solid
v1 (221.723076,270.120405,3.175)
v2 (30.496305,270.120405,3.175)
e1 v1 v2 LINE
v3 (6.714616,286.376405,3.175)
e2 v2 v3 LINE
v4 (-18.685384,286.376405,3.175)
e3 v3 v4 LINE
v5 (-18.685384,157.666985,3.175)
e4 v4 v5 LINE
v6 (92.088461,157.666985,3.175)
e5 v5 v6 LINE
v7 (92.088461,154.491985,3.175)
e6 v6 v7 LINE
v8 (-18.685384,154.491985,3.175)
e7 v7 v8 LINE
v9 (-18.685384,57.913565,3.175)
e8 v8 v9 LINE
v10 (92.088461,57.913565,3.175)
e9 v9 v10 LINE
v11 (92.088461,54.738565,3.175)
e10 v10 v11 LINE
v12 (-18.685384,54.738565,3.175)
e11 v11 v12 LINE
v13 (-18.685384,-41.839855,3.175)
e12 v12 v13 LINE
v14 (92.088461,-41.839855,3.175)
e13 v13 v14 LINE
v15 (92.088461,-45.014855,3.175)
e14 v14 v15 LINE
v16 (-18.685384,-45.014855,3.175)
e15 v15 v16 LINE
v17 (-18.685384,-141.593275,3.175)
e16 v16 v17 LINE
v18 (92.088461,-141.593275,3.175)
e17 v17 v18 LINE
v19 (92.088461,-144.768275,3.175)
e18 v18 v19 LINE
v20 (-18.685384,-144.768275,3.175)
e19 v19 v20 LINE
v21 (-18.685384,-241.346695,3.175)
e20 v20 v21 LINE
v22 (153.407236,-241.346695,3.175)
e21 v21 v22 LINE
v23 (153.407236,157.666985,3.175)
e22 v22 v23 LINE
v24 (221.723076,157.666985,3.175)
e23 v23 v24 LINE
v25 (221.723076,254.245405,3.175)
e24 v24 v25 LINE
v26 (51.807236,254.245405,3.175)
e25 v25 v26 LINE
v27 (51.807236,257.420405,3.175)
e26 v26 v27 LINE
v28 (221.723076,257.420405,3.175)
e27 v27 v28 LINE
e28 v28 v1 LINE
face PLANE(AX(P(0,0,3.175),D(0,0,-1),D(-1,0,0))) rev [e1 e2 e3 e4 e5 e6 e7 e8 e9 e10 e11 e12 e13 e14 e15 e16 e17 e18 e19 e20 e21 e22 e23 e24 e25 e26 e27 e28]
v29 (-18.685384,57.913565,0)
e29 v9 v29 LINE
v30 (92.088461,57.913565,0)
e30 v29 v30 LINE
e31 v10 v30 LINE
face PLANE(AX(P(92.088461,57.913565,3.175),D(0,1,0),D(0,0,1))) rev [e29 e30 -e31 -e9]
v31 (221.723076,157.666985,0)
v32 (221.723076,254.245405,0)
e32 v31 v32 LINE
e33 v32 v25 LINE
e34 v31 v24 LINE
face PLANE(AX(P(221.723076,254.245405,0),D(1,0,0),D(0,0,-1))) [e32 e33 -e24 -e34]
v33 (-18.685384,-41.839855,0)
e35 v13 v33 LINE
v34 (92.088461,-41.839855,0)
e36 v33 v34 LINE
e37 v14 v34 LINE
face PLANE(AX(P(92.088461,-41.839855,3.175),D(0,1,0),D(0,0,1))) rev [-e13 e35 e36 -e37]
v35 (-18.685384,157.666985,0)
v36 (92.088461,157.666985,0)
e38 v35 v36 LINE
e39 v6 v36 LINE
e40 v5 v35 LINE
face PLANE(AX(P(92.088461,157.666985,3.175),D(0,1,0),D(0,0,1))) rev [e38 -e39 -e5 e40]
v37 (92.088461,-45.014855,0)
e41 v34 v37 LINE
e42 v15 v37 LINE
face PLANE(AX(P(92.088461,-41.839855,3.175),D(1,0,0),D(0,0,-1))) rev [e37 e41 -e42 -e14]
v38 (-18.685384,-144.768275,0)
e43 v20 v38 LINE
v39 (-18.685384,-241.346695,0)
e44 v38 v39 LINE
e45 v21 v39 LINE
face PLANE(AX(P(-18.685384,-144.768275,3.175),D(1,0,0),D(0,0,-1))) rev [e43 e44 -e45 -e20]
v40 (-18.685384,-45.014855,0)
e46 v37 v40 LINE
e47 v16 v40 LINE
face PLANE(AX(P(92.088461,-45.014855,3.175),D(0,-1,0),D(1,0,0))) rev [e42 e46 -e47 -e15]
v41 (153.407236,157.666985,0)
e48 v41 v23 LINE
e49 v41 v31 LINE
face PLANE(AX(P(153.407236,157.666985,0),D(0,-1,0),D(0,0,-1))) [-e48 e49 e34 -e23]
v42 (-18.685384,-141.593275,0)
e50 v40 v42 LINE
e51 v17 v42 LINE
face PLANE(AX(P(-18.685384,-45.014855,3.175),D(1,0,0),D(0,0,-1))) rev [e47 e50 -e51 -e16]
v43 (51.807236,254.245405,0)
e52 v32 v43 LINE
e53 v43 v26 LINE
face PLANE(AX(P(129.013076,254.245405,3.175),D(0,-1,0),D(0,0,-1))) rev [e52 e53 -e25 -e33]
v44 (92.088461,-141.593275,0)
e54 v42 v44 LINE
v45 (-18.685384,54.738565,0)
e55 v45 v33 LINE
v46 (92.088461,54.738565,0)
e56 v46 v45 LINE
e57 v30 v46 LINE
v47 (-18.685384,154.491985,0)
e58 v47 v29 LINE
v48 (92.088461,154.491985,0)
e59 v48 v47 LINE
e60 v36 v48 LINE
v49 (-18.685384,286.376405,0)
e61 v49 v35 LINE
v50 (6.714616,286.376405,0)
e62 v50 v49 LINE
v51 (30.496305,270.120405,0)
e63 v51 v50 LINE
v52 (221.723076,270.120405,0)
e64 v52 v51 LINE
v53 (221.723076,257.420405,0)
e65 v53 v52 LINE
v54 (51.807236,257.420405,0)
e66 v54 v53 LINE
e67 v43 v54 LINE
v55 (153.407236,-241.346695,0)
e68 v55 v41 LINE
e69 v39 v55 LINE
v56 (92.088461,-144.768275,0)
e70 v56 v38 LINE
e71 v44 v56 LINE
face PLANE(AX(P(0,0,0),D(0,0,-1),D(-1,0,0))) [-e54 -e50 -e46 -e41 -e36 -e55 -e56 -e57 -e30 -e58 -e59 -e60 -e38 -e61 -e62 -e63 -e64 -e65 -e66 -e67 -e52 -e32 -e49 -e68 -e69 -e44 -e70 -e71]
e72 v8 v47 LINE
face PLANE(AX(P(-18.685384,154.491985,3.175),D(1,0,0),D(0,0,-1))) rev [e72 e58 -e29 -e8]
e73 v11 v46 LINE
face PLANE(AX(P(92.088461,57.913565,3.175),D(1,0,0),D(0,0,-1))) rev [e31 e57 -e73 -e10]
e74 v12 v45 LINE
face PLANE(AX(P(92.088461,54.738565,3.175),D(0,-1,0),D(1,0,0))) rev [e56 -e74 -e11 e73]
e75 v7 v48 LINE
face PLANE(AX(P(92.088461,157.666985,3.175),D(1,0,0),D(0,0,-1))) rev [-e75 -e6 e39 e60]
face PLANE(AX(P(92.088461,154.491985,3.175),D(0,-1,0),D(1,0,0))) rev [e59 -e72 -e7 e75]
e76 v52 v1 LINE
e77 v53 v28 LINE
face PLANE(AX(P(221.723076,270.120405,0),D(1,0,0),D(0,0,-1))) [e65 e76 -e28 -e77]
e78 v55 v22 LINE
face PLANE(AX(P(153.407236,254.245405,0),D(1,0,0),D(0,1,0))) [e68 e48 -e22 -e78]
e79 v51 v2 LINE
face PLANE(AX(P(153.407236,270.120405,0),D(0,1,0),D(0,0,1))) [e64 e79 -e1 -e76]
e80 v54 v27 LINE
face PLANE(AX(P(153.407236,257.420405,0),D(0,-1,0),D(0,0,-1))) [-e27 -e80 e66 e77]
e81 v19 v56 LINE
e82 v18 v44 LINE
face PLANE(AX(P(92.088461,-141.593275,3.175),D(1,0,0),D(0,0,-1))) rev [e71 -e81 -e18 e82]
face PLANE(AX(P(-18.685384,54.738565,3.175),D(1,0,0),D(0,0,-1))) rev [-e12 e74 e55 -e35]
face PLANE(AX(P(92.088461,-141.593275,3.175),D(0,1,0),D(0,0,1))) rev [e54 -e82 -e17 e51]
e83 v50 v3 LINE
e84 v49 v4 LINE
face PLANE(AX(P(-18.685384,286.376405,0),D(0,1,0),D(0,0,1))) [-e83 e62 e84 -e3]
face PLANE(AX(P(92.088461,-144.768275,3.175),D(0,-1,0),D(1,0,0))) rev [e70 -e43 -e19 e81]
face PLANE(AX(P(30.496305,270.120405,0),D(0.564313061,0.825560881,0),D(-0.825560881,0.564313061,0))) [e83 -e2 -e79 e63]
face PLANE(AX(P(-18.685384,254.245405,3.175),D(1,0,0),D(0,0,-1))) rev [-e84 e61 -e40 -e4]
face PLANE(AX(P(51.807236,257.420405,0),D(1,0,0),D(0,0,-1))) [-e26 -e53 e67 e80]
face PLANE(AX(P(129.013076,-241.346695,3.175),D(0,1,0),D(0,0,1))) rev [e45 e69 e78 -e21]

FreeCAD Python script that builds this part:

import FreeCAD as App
import Part
import Sketcher

V = App.Vector
Q = App.Units.Quantity

doc = App.newDocument("Part")
body = doc.addObject("PartDesign::Body", "Body")

sketch1 = body.newObject("Sketcher::SketchObject", "Sketch")
sketch1.AttachmentSupport = (doc.getObject("XY_Plane"), [""])
sketch1.MapMode = "FlatFace"
sketch1.addGeometry([
    Part.LineSegment(V(129.013076, 254.245405, 0), V(-18.685384, 254.245405, 0)),
    Part.LineSegment(V(-18.685384, 254.245405, 0), V(-18.685384, 157.666985, 0)),
    Part.LineSegment(V(-18.685384, 157.666985, 0), V(92.088461, 157.666985, 0)),
    Part.LineSegment(V(92.088461, 157.666985, 0), V(92.088461, 154.491985, 0)),
    Part.LineSegment(V(92.088461, 154.491985, 0), V(-18.685384, 154.491985, 0)),
    Part.LineSegment(V(-18.685384, 154.491985, 0), V(-18.685384, 57.913565, 0)),
    Part.LineSegment(V(-18.685384, 57.913565, 0), V(92.088461, 57.913565, 0)),
    Part.LineSegment(V(92.088461, 57.913565, 0), V(92.088461, 54.738565, 0)),
    Part.LineSegment(V(92.088461, 54.738565, 0), V(-18.685384, 54.738565, 0)),
    Part.LineSegment(V(-18.685384, 54.738565, 0), V(-18.685384, -41.839855, 0)),
    Part.LineSegment(V(-18.685384, -41.839855, 0), V(92.088461, -41.839855, 0)),
    Part.LineSegment(V(92.088461, -41.839855, 0), V(92.088461, -45.014855, 0)),
    Part.LineSegment(V(92.088461, -45.014855, 0), V(-18.685384, -45.014855, 0)),
    Part.LineSegment(V(-18.685384, -45.014855, 0), V(-18.685384, -141.593275, 0)),
    Part.LineSegment(V(-18.685384, -141.593275, 0), V(92.088461, -141.593275, 0)),
    Part.LineSegment(V(92.088461, -141.593275, 0), V(92.088461, -144.768275, 0)),
    Part.LineSegment(V(92.088461, -144.768275, 0), V(-18.685384, -144.768275, 0)),
    Part.LineSegment(V(-18.685384, -144.768275, 0), V(-18.685384, -241.346695, 0)),
    Part.LineSegment(V(-18.685384, -241.346695, 0), V(129.013076, -241.346695, 0)),
    Part.LineSegment(V(129.013076, -241.346695, 0), V(129.013076, 254.245405, 0)),
], False)
sketch1.addConstraint([
    Sketcher.Constraint("Coincident", 0, 2, 1, 1),
    Sketcher.Constraint("Coincident", 1, 2, 2, 1),
    Sketcher.Constraint("Coincident", 2, 2, 3, 1),
    Sketcher.Constraint("Coincident", 3, 2, 4, 1),
    Sketcher.Constraint("Coincident", 4, 2, 5, 1),
    Sketcher.Constraint("Coincident", 5, 2, 6, 1),
    Sketcher.Constraint("Coincident", 6, 2, 7, 1),
    Sketcher.Constraint("Coincident", 7, 2, 8, 1),
    Sketcher.Constraint("Coincident", 8, 2, 9, 1),
    Sketcher.Constraint("Coincident", 9, 2, 10, 1),
    Sketcher.Constraint("Coincident", 10, 2, 11, 1),
    Sketcher.Constraint("Coincident", 11, 2, 12, 1),
    Sketcher.Constraint("Coincident", 12, 2, 13, 1),
    Sketcher.Constraint("Coincident", 13, 2, 14, 1),
    Sketcher.Constraint("Coincident", 14, 2, 15, 1),
    Sketcher.Constraint("Coincident", 15, 2, 16, 1),
    Sketcher.Constraint("Coincident", 16, 2, 17, 1),
    Sketcher.Constraint("Coincident", 17, 2, 18, 1),
    Sketcher.Constraint("Coincident", 18, 2, 19, 1),
    Sketcher.Constraint("Coincident", 19, 2, 0, 1),
    Sketcher.Constraint("Horizontal", 0),
    Sketcher.Constraint("Vertical", 1),
    Sketcher.Constraint("Horizontal", 2),
    Sketcher.Constraint("Vertical", 3),
    Sketcher.Constraint("Horizontal", 4),
    Sketcher.Constraint("Vertical", 5),
    Sketcher.Constraint("Horizontal", 6),
    Sketcher.Constraint("Vertical", 7),
    Sketcher.Constraint("Horizontal", 8),
    Sketcher.Constraint("Vertical", 9),
    Sketcher.Constraint("Horizontal", 10),
    Sketcher.Constraint("Vertical", 11),
    Sketcher.Constraint("Horizontal", 12),
    Sketcher.Constraint("Vertical", 13),
    Sketcher.Constraint("Horizontal", 14),
    Sketcher.Constraint("Vertical", 15),
    Sketcher.Constraint("Horizontal", 16),
    Sketcher.Constraint("Vertical", 17),
    Sketcher.Constraint("Horizontal", 18),
    Sketcher.Constraint("Vertical", 19),
    Sketcher.Constraint("Vertical", 1, 2, 4, 2),
    Sketcher.Constraint("Vertical", 3, 2, 6, 2),
    Sketcher.Constraint("Vertical", 5, 2, 8, 2),
    Sketcher.Constraint("Vertical", 7, 2, 10, 2),
    Sketcher.Constraint("Vertical", 9, 2, 12, 2),
    Sketcher.Constraint("Vertical", 11, 2, 14, 2),
    Sketcher.Constraint("Vertical", 13, 2, 16, 2),
    Sketcher.Constraint("Equal", 1, 5),
    Sketcher.Constraint("Equal", 3, 7),
    Sketcher.Constraint("Equal", 5, 9),
    Sketcher.Constraint("Equal", 7, 11),
    Sketcher.Constraint("Equal", 9, 13),
    Sketcher.Constraint("Equal", 11, 15),
    Sketcher.Constraint("Equal", 13, 17),
    Sketcher.Constraint("DistanceY", 3, 2, 3, 1, Q("0.125 in")),
    Sketcher.Constraint("DistanceX", 0, 2, 0, 1, Q("5.8149 in")),
    Sketcher.Constraint("DistanceY", 1, 2, 1, 1, Q("3.8023 in")),
    Sketcher.Constraint("DistanceX", 2, 1, 2, 2, 110.773845),
    Sketcher.Constraint("DistanceX", -1, 1, 2, 2, 92.088461),
    Sketcher.Constraint("DistanceY", -1, 1, 0, 2, 254.245405),
])
pad1 = body.newObject("PartDesign::Pad", "Pad")
pad1.Profile = sketch1
pad1.Length = Q("0.125 in")

sketch2 = body.newObject("Sketcher::SketchObject", "Sketch001")
sketch2.AttachmentSupport = (doc.getObject("XY_Plane"), [""])
sketch2.MapMode = "FlatFace"
sketch2.AttachmentOffset = App.Placement(V(0, 0, 0.125 * 25.4), App.Rotation())
sketch2.addGeometry([
    Part.LineSegment(V(129.013076, 254.245405, 0), V(129.013076, -241.346695, 0)),
    Part.LineSegment(V(129.013076, -241.346695, 0), V(153.407236, -241.346695, 0)),
    Part.LineSegment(V(153.407236, -241.346695, 0), V(153.407236, 254.245405, 0)),
    Part.LineSegment(V(153.407236, 254.245405, 0), V(129.013076, 254.245405, 0)),
], False)
sketch2.addConstraint([
    Sketcher.Constraint("Coincident", 0, 2, 1, 1),
    Sketcher.Constraint("Coincident", 1, 2, 2, 1),
    Sketcher.Constraint("Coincident", 2, 2, 3, 1),
    Sketcher.Constraint("Coincident", 3, 2, 0, 1),
    Sketcher.Constraint("Vertical", 0),
    Sketcher.Constraint("Horizontal", 1),
    Sketcher.Constraint("Vertical", 2),
    Sketcher.Constraint("Horizontal", 3),
    Sketcher.Constraint("DistanceX", 1, 1, 1, 2, Q("0.9604 in")),
    Sketcher.Constraint("DistanceY", 0, 2, 0, 1, Q("19.5115 in")),
    Sketcher.Constraint("DistanceX", -1, 1, 0, 2, 129.013076),
    Sketcher.Constraint("DistanceY", 0, 2, -1, 1, 241.346695),
])
pad2 = body.newObject("PartDesign::Pad", "Pad001")
pad2.Profile = sketch2
pad2.Length = Q("0.125 in")
pad2.Reversed = True

sketch3 = body.newObject("Sketcher::SketchObject", "Sketch002")
sketch3.AttachmentSupport = (doc.getObject("XY_Plane"), [""])
sketch3.MapMode = "FlatFace"
sketch3.AttachmentOffset = App.Placement(V(0, 0, 0.125 * 25.4), App.Rotation())
sketch3.addGeometry([
    Part.LineSegment(V(51.807236, 254.245405, 0), V(51.807236, 257.420405, 0)),
    Part.LineSegment(V(51.807236, 257.420405, 0), V(153.407236, 257.420405, 0)),
    Part.LineSegment(V(153.407236, 257.420405, 0), V(153.407236, 270.120405, 0)),
    Part.LineSegment(V(153.407236, 270.120405, 0), V(30.496305, 270.120405, 0)),
    Part.LineSegment(V(30.496305, 270.120405, 0), V(6.714616, 286.376405, 0)),
    Part.LineSegment(V(6.714616, 286.376405, 0), V(-18.685384, 286.376405, 0)),
    Part.LineSegment(V(-18.685384, 286.376405, 0), V(-18.685384, 254.245405, 0)),
    Part.LineSegment(V(-18.685384, 254.245405, 0), V(51.807236, 254.245405, 0)),
], False)
sketch3.addConstraint([
    Sketcher.Constraint("Coincident", 0, 2, 1, 1),
    Sketcher.Constraint("Coincident", 1, 2, 2, 1),
    Sketcher.Constraint("Coincident", 2, 2, 3, 1),
    Sketcher.Constraint("Coincident", 3, 2, 4, 1),
    Sketcher.Constraint("Coincident", 4, 2, 5, 1),
    Sketcher.Constraint("Coincident", 5, 2, 6, 1),
    Sketcher.Constraint("Coincident", 6, 2, 7, 1),
    Sketcher.Constraint("Coincident", 7, 2, 0, 1),
    Sketcher.Constraint("Vertical", 0),
    Sketcher.Constraint("Horizontal", 1),
    Sketcher.Constraint("Vertical", 2),
    Sketcher.Constraint("Horizontal", 3),
    Sketcher.Constraint("Horizontal", 5),
    Sketcher.Constraint("Vertical", 6),
    Sketcher.Constraint("Horizontal", 7),
    Sketcher.Constraint("DistanceX", 1, 1, 1, 2, Q("4 in")),
    Sketcher.Constraint("DistanceX", 5, 2, 5, 1, Q("1 in")),
    Sketcher.Constraint("DistanceY", 2, 1, 2, 2, Q("0.5 in")),
    Sketcher.Constraint("DistanceY", 0, 1, 0, 2, Q("0.125 in")),
    Sketcher.Constraint("DistanceY", 6, 2, 6, 1, Q("1.265 in")),
    Sketcher.Constraint("DistanceX", 7, 1, 7, 2, Q("2.7753 in")),
    Sketcher.Constraint("DistanceX", 3, 2, 3, 1, 122.910931),
    Sketcher.Constraint("DistanceX", -1, 1, 0, 2, 51.807236),
    Sketcher.Constraint("DistanceY", -1, 1, 0, 2, 257.420405),
])
pad3 = body.newObject("PartDesign::Pad", "Pad002")
pad3.Profile = sketch3
pad3.Length = Q("0.125 in")
pad3.Reversed = True

sketch4 = body.newObject("Sketcher::SketchObject", "Sketch003")
sketch4.AttachmentSupport = (doc.getObject("XY_Plane"), [""])
sketch4.MapMode = "FlatFace"
sketch4.AttachmentOffset = App.Placement(V(0, 0, 0.125 * 25.4), App.Rotation())
sketch4.addGeometry([
    Part.LineSegment(V(153.407236, 270.120405, 0), V(153.407236, 257.420405, 0)),
    Part.LineSegment(V(153.407236, 257.420405, 0), V(221.723076, 257.420405, 0)),
    Part.LineSegment(V(221.723076, 257.420405, 0), V(221.723076, 270.120405, 0)),
    Part.LineSegment(V(221.723076, 270.120405, 0), V(153.407236, 270.120405, 0)),
    Part.LineSegment(V(153.407236, 254.245405, 0), V(153.407236, 157.666985, 0)),
    Part.LineSegment(V(153.407236, 157.666985, 0), V(221.723076, 157.666985, 0)),
    Part.LineSegment(V(221.723076, 157.666985, 0), V(221.723076, 254.245405, 0)),
    Part.LineSegment(V(221.723076, 254.245405, 0), V(153.407236, 254.245405, 0)),
], False)
sketch4.addConstraint([
    Sketcher.Constraint("Coincident", 0, 2, 1, 1),
    Sketcher.Constraint("Coincident", 1, 2, 2, 1),
    Sketcher.Constraint("Coincident", 2, 2, 3, 1),
    Sketcher.Constraint("Coincident", 3, 2, 0, 1),
    Sketcher.Constraint("Coincident", 4, 2, 5, 1),
    Sketcher.Constraint("Coincident", 5, 2, 6, 1),
    Sketcher.Constraint("Coincident", 6, 2, 7, 1),
    Sketcher.Constraint("Coincident", 7, 2, 4, 1),
    Sketcher.Constraint("Vertical", 0),
    Sketcher.Constraint("Horizontal", 1),
    Sketcher.Constraint("Vertical", 2),
    Sketcher.Constraint("Horizontal", 3),
    Sketcher.Constraint("Vertical", 4),
    Sketcher.Constraint("Horizontal", 5),
    Sketcher.Constraint("Vertical", 6),
    Sketcher.Constraint("Horizontal", 7),
    Sketcher.Constraint("Vertical", 3, 2, 4, 2),
    Sketcher.Constraint("Vertical", 2, 2, 5, 2),
    Sketcher.Constraint("DistanceY", 0, 2, 0, 1, Q("0.5 in")),
    Sketcher.Constraint("DistanceX", 1, 1, 1, 2, Q("2.6896 in")),
    Sketcher.Constraint("DistanceY", 4, 2, 4, 1, Q("3.8023 in")),
    Sketcher.Constraint("DistanceY", 6, 2, 1, 2, Q("0.125 in")),
    Sketcher.Constraint("DistanceX", -1, 1, 0, 2, 153.407236),
    Sketcher.Constraint("DistanceY", -1, 1, 0, 2, 257.420405),
])
pad4 = body.newObject("PartDesign::Pad", "Pad003")
pad4.Profile = sketch4
pad4.Length = Q("0.125 in")
pad4.Reversed = True

doc.recompute()
